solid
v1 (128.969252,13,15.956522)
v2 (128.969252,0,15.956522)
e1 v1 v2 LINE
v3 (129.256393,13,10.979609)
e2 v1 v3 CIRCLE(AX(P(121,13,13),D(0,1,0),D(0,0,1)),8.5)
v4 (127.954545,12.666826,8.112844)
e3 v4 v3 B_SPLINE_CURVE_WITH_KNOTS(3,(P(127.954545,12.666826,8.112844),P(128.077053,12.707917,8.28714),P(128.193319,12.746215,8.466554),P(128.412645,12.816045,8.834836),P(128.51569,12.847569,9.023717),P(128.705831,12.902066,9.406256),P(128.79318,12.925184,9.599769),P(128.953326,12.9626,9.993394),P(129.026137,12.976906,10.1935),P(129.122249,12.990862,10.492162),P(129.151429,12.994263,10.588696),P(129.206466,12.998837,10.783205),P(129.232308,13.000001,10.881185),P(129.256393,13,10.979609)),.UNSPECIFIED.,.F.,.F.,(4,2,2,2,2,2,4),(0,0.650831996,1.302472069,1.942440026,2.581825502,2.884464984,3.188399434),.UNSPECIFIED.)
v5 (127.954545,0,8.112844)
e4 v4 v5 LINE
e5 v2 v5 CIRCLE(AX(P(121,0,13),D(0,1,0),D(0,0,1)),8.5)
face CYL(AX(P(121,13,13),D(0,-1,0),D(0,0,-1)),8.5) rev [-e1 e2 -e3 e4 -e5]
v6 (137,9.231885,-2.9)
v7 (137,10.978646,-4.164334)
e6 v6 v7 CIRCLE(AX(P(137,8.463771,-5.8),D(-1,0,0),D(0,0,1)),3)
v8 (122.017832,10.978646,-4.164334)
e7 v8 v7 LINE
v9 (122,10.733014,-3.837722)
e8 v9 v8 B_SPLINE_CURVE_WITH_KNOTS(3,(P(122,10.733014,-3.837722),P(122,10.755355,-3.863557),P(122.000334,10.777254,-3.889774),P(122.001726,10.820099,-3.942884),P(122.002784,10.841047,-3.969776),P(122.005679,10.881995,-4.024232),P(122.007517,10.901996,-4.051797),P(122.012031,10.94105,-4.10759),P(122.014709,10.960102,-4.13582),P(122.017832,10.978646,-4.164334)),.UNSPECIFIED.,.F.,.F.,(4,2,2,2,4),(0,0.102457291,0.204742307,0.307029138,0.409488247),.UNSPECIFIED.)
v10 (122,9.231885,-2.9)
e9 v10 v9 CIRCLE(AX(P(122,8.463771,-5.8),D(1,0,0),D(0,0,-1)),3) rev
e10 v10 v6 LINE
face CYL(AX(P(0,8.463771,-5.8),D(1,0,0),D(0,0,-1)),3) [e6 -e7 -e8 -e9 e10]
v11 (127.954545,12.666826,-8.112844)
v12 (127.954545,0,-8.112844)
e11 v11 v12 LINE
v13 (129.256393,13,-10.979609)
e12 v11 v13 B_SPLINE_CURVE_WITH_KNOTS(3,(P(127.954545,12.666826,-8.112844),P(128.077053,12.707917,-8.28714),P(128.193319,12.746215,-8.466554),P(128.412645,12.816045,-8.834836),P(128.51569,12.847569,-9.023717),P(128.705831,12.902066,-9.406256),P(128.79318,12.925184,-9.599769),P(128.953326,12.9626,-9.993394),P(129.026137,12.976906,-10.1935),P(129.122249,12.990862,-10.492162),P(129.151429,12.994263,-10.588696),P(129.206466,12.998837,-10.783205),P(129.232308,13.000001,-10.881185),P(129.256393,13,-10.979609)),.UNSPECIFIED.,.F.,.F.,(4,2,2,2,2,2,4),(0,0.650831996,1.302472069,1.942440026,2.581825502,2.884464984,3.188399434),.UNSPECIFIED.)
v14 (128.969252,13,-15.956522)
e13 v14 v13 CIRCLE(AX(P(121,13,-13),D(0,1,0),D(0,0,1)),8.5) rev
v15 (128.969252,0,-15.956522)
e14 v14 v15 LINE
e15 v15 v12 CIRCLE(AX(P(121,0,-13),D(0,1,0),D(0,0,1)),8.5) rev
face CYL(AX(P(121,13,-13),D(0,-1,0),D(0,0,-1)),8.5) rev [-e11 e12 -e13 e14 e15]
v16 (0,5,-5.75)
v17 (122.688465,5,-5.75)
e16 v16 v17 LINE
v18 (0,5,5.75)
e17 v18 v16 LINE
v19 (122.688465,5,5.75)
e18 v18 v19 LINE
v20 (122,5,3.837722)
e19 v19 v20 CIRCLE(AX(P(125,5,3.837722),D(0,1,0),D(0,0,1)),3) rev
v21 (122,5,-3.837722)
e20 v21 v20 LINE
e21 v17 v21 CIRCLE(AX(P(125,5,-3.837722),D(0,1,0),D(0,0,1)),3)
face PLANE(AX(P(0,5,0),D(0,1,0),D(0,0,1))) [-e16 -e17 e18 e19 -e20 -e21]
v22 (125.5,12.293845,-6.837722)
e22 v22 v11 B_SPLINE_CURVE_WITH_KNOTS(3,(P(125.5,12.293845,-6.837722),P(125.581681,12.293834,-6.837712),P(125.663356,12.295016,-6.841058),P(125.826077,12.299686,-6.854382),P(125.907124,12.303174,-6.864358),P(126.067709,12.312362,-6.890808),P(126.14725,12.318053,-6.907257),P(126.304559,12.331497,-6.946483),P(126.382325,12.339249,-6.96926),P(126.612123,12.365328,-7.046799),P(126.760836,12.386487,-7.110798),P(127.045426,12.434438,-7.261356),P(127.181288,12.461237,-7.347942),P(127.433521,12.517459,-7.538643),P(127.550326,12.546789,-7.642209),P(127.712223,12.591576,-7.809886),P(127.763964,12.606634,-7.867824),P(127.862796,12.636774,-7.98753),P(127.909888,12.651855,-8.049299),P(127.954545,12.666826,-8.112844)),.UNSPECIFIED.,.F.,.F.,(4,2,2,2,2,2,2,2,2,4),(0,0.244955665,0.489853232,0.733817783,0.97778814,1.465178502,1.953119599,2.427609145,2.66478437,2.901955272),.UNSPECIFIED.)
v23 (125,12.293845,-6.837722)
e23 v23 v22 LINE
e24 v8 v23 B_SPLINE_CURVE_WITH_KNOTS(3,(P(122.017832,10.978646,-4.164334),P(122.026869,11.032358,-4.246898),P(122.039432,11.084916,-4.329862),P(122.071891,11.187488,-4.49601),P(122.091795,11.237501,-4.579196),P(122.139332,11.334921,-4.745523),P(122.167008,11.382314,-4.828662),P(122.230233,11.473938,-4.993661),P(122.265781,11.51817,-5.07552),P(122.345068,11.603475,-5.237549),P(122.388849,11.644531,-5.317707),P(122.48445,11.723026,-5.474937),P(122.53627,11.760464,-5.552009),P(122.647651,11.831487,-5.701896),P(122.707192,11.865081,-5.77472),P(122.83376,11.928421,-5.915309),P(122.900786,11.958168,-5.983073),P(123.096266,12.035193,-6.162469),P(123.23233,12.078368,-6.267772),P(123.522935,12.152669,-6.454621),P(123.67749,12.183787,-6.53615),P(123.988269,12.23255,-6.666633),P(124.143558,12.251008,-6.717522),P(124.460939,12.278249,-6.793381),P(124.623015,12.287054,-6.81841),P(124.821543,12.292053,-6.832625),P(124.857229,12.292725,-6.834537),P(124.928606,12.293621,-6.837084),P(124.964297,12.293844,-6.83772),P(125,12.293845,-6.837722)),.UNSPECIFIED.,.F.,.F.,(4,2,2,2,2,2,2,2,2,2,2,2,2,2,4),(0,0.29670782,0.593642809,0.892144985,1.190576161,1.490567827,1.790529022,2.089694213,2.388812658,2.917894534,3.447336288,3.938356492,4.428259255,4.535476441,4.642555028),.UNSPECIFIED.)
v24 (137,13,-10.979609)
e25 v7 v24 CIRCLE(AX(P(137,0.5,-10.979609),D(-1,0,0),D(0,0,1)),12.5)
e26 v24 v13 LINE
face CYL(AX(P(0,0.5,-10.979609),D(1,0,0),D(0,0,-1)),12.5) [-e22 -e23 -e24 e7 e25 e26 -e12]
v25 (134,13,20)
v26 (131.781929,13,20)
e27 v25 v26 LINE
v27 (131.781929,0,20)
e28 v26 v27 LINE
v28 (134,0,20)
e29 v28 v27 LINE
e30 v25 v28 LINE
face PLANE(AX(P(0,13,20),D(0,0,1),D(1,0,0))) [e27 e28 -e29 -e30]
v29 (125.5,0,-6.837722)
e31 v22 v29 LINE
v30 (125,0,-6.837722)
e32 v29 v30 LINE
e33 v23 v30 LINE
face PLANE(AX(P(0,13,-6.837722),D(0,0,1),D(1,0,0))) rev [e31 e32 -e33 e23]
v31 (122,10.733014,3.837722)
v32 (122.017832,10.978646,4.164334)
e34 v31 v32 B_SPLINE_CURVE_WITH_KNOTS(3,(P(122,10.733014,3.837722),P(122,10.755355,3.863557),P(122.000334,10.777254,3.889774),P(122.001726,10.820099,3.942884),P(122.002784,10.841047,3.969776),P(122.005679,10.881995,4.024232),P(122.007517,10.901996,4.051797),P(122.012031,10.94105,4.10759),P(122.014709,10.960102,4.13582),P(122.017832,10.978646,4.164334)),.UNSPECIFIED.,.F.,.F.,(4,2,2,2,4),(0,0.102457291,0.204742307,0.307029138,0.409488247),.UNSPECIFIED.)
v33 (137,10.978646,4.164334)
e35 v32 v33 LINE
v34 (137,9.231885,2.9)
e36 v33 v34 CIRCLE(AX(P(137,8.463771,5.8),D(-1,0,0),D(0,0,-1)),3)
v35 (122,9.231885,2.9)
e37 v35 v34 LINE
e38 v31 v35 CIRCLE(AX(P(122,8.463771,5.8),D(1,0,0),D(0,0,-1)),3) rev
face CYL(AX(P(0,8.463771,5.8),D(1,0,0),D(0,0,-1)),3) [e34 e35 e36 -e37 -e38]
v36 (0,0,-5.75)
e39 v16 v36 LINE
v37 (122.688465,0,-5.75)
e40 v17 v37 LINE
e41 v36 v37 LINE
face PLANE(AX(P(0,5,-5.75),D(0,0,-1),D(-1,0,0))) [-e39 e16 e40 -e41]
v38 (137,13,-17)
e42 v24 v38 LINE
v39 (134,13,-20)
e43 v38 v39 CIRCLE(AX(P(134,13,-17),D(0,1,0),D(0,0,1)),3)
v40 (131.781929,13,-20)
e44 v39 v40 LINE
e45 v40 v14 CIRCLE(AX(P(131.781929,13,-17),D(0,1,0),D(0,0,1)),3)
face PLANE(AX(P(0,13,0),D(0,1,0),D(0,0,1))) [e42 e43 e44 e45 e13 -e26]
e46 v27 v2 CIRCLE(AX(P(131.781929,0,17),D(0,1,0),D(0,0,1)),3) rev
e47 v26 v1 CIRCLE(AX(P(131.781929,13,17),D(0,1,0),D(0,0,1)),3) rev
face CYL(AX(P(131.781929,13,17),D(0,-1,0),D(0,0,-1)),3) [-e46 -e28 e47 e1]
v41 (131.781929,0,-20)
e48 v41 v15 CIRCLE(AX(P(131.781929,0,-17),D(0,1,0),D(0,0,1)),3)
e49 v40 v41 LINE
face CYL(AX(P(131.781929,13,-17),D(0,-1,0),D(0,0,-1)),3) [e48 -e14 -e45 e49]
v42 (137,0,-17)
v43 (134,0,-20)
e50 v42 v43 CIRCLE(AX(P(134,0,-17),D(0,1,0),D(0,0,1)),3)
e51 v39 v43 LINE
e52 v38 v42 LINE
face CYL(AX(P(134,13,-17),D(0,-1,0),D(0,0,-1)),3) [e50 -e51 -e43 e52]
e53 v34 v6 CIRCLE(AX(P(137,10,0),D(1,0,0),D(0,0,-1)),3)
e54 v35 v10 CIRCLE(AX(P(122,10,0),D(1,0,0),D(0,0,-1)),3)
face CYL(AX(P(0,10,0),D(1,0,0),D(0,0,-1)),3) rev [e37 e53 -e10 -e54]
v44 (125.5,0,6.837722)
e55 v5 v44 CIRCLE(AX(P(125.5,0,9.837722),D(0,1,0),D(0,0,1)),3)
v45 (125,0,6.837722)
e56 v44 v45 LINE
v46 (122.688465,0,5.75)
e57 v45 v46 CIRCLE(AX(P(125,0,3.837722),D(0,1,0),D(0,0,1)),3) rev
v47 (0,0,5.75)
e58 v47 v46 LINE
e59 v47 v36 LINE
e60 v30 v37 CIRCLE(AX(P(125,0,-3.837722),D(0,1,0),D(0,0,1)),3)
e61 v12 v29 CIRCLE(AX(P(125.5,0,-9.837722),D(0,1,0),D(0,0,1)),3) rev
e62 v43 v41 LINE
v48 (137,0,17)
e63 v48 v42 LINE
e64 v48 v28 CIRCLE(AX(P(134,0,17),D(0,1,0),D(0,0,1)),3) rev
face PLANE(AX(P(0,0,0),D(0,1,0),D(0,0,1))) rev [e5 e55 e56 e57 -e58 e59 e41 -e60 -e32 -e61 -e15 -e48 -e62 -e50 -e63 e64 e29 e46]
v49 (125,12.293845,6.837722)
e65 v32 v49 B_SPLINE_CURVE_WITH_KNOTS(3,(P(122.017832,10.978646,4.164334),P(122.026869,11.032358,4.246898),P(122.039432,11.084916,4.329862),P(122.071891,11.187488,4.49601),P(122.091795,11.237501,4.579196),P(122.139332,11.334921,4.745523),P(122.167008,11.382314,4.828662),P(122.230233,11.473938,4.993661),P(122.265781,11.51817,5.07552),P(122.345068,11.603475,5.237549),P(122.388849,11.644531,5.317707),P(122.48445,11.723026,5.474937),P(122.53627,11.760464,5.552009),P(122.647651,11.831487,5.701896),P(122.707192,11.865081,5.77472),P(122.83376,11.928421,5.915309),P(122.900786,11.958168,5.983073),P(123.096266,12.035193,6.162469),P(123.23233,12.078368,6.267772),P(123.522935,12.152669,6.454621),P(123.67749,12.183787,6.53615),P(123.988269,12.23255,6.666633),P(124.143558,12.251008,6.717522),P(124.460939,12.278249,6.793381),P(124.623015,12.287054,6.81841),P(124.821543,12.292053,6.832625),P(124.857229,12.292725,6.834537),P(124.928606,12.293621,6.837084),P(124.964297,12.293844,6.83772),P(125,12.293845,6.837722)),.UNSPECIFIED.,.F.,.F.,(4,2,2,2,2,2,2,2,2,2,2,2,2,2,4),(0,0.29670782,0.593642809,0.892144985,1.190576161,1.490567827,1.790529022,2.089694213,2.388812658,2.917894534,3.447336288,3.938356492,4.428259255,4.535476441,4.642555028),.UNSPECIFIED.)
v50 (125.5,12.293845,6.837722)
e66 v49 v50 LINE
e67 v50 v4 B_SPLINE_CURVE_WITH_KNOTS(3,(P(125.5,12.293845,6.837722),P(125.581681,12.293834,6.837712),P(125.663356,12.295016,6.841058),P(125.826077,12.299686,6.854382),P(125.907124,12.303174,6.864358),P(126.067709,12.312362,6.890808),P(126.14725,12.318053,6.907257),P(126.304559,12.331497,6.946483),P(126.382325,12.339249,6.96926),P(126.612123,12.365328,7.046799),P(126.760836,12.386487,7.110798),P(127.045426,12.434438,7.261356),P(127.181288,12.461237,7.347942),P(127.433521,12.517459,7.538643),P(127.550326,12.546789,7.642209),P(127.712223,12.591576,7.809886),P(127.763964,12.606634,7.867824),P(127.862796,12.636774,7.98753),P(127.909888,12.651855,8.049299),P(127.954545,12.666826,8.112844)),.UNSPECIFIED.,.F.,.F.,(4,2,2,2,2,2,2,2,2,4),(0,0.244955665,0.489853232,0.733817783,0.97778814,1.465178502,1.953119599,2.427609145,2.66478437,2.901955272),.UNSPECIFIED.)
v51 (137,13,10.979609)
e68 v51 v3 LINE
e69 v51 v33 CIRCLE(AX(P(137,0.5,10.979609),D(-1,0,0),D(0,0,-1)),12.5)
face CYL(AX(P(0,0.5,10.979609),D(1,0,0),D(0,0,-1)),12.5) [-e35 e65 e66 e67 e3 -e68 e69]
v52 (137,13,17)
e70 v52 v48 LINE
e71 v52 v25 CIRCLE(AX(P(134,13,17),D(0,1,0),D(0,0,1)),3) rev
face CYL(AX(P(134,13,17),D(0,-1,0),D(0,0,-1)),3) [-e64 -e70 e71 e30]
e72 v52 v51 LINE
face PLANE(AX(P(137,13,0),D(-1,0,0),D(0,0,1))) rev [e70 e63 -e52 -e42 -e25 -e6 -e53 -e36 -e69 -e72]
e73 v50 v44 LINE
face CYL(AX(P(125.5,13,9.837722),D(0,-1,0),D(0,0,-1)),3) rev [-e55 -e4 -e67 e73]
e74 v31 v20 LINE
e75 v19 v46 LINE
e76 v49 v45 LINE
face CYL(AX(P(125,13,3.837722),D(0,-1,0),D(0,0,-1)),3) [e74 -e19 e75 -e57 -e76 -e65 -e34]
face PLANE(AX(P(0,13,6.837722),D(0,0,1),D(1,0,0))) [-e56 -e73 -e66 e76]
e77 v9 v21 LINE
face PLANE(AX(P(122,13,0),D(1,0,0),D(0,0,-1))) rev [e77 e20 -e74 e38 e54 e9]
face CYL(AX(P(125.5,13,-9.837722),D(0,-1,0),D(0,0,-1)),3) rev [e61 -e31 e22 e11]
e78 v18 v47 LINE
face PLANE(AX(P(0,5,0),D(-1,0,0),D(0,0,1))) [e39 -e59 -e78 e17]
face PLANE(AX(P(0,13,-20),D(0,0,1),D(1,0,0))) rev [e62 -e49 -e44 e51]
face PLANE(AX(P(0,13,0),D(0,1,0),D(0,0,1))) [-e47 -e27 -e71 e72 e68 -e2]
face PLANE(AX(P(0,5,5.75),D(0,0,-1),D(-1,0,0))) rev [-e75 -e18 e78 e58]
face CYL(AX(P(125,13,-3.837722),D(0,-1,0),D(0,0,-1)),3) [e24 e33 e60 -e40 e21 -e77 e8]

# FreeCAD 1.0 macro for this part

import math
import FreeCAD as App
import Part
import Sketcher
from FreeCAD import Vector

doc = App.newDocument("Part")
body = doc.addObject("PartDesign::Body", "Body")

# Sketch on XZ plane
sketch1 = body.newObject("Sketcher::SketchObject", "Sketch")
sketch1.AttachmentSupport = (doc.getObject("XZ_Plane"), [""])
sketch1.MapMode = "FlatFace"
sketch1.addGeometry([
    Part.LineSegment(Vector(122, -3.8, 0), Vector(122, 3.8, 0)),  # 0
    Part.ArcOfCircle(Part.Circle(Vector(125, 3.8, 0), Vector(0, 0, 1), 3), math.radians(140), math.radians(180)),  # 1
    Part.ArcOfCircle(Part.Circle(Vector(125, 3.8, 0), Vector(0, 0, 1), 3), math.radians(90), math.radians(140)),  # 2
    Part.LineSegment(Vector(125, 6.8, 0), Vector(125.5, 6.8, 0)),  # 3
    Part.ArcOfCircle(Part.Circle(Vector(125.5, 9.8, 0), Vector(0, 0, 1), 3), math.radians(-90), math.radians(-35)),  # 4
    Part.ArcOfCircle(Part.Circle(Vector(121, 13, 0), Vector(0, 0, 1), 8.5), math.radians(-35), math.radians(20)),  # 5
    Part.ArcOfCircle(Part.Circle(Vector(131.8, 17, 0), Vector(0, 0, 1), 3), math.radians(90), math.radians(200)),  # 6
    Part.LineSegment(Vector(131.8, 20, 0), Vector(134, 20, 0)),  # 7
    Part.ArcOfCircle(Part.Circle(Vector(134, 17, 0), Vector(0, 0, 1), 3), math.radians(0), math.radians(90)),  # 8
    Part.LineSegment(Vector(137, 17, 0), Vector(137, -17, 0)),  # 9
    Part.ArcOfCircle(Part.Circle(Vector(134, -17, 0), Vector(0, 0, 1), 3), math.radians(-90), math.radians(0)),  # 10
    Part.LineSegment(Vector(134, -20, 0), Vector(131.8, -20, 0)),  # 11
    Part.ArcOfCircle(Part.Circle(Vector(131.8, -17, 0), Vector(0, 0, 1), 3), math.radians(160), math.radians(270)),  # 12
    Part.ArcOfCircle(Part.Circle(Vector(121, -13, 0), Vector(0, 0, 1), 8.5), math.radians(-20), math.radians(35)),  # 13
    Part.ArcOfCircle(Part.Circle(Vector(125.5, -9.8, 0), Vector(0, 0, 1), 3), math.radians(35), math.radians(90)),  # 14
    Part.LineSegment(Vector(125.5, -6.8, 0), Vector(125, -6.8, 0)),  # 15
    Part.ArcOfCircle(Part.Circle(Vector(125, -3.8, 0), Vector(0, 0, 1), 3), math.radians(-140), math.radians(-90)),  # 16
    Part.ArcOfCircle(Part.Circle(Vector(125, -3.8, 0), Vector(0, 0, 1), 3), math.radians(180), math.radians(220)),  # 17
], False)
sketch1.addConstraint([
    Sketcher.Constraint("Tangent", 0, 2, 1, 2),
    Sketcher.Constraint("Tangent", 1, 1, 2, 2),
    Sketcher.Constraint("Tangent", 2, 1, 3, 1),
    Sketcher.Constraint("Tangent", 3, 2, 4, 1),
    Sketcher.Constraint("Tangent", 4, 2, 5, 1),
    Sketcher.Constraint("Tangent", 5, 2, 6, 2),
    Sketcher.Constraint("Tangent", 6, 1, 7, 1),
    Sketcher.Constraint("Tangent", 7, 2, 8, 2),
    Sketcher.Constraint("Tangent", 8, 1, 9, 1),
    Sketcher.Constraint("Tangent", 9, 2, 10, 2),
    Sketcher.Constraint("Tangent", 10, 1, 11, 1),
    Sketcher.Constraint("Tangent", 11, 2, 12, 2),
    Sketcher.Constraint("Tangent", 12, 1, 13, 1),
    Sketcher.Constraint("Tangent", 13, 2, 14, 1),
    Sketcher.Constraint("Tangent", 14, 2, 15, 1),
    Sketcher.Constraint("Tangent", 15, 2, 16, 2),
    Sketcher.Constraint("Tangent", 16, 1, 17, 2),
    Sketcher.Constraint("Tangent", 17, 1, 0, 1),
    Sketcher.Constraint("Vertical", 0),
    Sketcher.Constraint("Horizontal", 3),
    Sketcher.Constraint("Horizontal", 7),
    Sketcher.Constraint("Vertical", 9),
    Sketcher.Constraint("Horizontal", 11),
    Sketcher.Constraint("Horizontal", 15),
    Sketcher.Constraint("Equal", 1, 2),
    Sketcher.Constraint("Equal", 2, 4),
    Sketcher.Constraint("Equal", 4, 6),
    Sketcher.Constraint("Equal", 6, 8),
    Sketcher.Constraint("Equal", 8, 10),
    Sketcher.Constraint("Equal", 10, 12),
    Sketcher.Constraint("Equal", 5, 13),
    Sketcher.Constraint("Equal", 12, 14),
    Sketcher.Constraint("Equal", 14, 16),
    Sketcher.Constraint("Equal", 16, 17),
    Sketcher.Constraint("Symmetric", 6, 3, 12, 3, -1),
    Sketcher.Constraint("Symmetric", 4, 3, 14, 3, -1),
    Sketcher.Constraint("Vertical", 1, 1, 16, 1),
    Sketcher.Constraint("Radius", 1, 3.0),
    Sketcher.Constraint("Radius", 5, 8.5),
    Sketcher.Constraint("DistanceY", 9, 2, 9, 1, 34.0),
    Sketcher.Constraint("DistanceX", 3, 1, 3, 2, 0.5),
    Sketcher.Constraint("DistanceX", -1, 1, 1, 3, 125.0),
    Sketcher.Constraint("DistanceX", -1, 1, 5, 3, 121.0),
    Sketcher.Constraint("DistanceY", -1, 1, 5, 3, 13.0),
    Sketcher.Constraint("DistanceX", -1, 1, 8, 3, 134.0),
    Sketcher.Constraint("DistanceY", -1, 1, 1, 1, 5.75),
])
pad1 = body.newObject("PartDesign::Pad", "Pad")
pad1.Profile = sketch1
pad1.Length = 13
pad1.Reversed = True

# Sketch on XZ plane
sketch2 = body.newObject("Sketcher::SketchObject", "Sketch001")
sketch2.AttachmentSupport = (doc.getObject("XZ_Plane"), [""])
sketch2.MapMode = "FlatFace"
sketch2.addGeometry([
    Part.LineSegment(Vector(0, -5.8, 0), Vector(0, 5.8, 0)),  # 0
    Part.LineSegment(Vector(0, 5.8, 0), Vector(122.7, 5.8, 0)),  # 1
    Part.ArcOfCircle(Part.Circle(Vector(125, 3.8, 0), Vector(0, 0, 1), 3), math.radians(140), math.radians(180)),  # 2
    Part.LineSegment(Vector(122, 3.8, 0), Vector(122, -3.8, 0)),  # 3
    Part.ArcOfCircle(Part.Circle(Vector(125, -3.8, 0), Vector(0, 0, 1), 3), math.radians(180), math.radians(220)),  # 4
    Part.LineSegment(Vector(122.7, -5.8, 0), Vector(0, -5.8, 0)),  # 5
], False)
sketch2.addConstraint([
    Sketcher.Constraint("Coincident", 0, 2, 1, 1),
    Sketcher.Constraint("Coincident", 1, 2, 2, 1),
    Sketcher.Constraint("Tangent", 2, 2, 3, 1),
    Sketcher.Constraint("Tangent", 3, 2, 4, 1),
    Sketcher.Constraint("Coincident", 4, 2, 5, 1),
    Sketcher.Constraint("Coincident", 5, 2, 0, 1),
    Sketcher.Constraint("Vertical", 0),
    Sketcher.Constraint("Horizontal", 1),
    Sketcher.Constraint("Vertical", 3),
    Sketcher.Constraint("Horizontal", 5),
    Sketcher.Constraint("Equal", 2, 4),
    Sketcher.Constraint("Symmetric", 0, 2, 5, 2, -1, 1),
    Sketcher.Constraint("Vertical", 1, 2, 4, 2),
    Sketcher.Constraint("Radius", 2, 3.0),
    Sketcher.Constraint("DistanceY", 0, 1, 0, 2, 11.5),
    Sketcher.Constraint("DistanceX", -1, 1, 2, 3, 125.0),
    Sketcher.Constraint("DistanceX", 1, 1, 1, 2, 122.688465),
])
pad2 = body.newObject("PartDesign::Pad", "Pad001")
pad2.Profile = sketch2
pad2.Length = 5
pad2.Reversed = True

# Sketch on YZ plane
sketch3 = body.newObject("Sketcher::SketchObject", "Sketch002")
sketch3.AttachmentSupport = (doc.getObject("YZ_Plane"), [""])
sketch3.MapMode = "FlatFace"
sketch3.AttachmentOffset = App.Placement(Vector(0, 0, 137), App.Rotation())
sketch3.addGeometry([
    Part.LineSegment(Vector(13, -11, 0), Vector(13, 11, 0)),  # 0
    Part.ArcOfCircle(Part.Circle(Vector(0.5, 11, 0), Vector(0, 0, 1), 12.5), math.radians(-33), math.radians(0)),  # 1
    Part.ArcOfCircle(Part.Circle(Vector(8.5, 5.8, 0), Vector(0, 0, 1), 3), math.radians(-75), math.radians(-33)),  # 2
    Part.ArcOfCircle(Part.Circle(Vector(10, 0, 0), Vector(0, 0, 1), 3), math.radians(105), math.radians(255)),  # 3
    Part.ArcOfCircle(Part.Circle(Vector(8.5, -5.8, 0), Vector(0, 0, 1), 3), math.radians(33), math.radians(75)),  # 4
    Part.ArcOfCircle(Part.Circle(Vector(0.5, -11, 0), Vector(0, 0, 1), 12.5), math.radians(0), math.radians(33)),  # 5
], False)
sketch3.addConstraint([
    Sketcher.Constraint("Tangent", 0, 2, 1, 2),
    Sketcher.Constraint("Tangent", 1, 1, 2, 2),
    Sketcher.Constraint("Tangent", 2, 1, 3, 1),
    Sketcher.Constraint("Tangent", 3, 2, 4, 2),
    Sketcher.Constraint("Tangent", 4, 1, 5, 2),
    Sketcher.Constraint("Tangent", 5, 1, 0, 1),
    Sketcher.Constraint("Vertical", 0),
    Sketcher.Constraint("Equal", 2, 3),
    Sketcher.Constraint("Equal", 3, 4),
    Sketcher.Constraint("Equal", 1, 5),
    Sketcher.Constraint("Symmetric", 2, 3, 4, 3, -1),
    Sketcher.Constraint("Radius", 2, 3.0),
    Sketcher.Constraint("Radius", 1, 12.5),
    Sketcher.Constraint("DistanceX", -1, 1, 3, 3, 10.0),
    Sketcher.Constraint("DistanceX", -1, 1, 0, 2, 13.0),
    Sketcher.Constraint("DistanceY", -1, 1, 2, 3, 5.8),
])
pocket1 = body.newObject("PartDesign::Pocket", "Pocket")
pocket1.Profile = sketch3
pocket1.Type = "ThroughAll"

doc.recompute()
